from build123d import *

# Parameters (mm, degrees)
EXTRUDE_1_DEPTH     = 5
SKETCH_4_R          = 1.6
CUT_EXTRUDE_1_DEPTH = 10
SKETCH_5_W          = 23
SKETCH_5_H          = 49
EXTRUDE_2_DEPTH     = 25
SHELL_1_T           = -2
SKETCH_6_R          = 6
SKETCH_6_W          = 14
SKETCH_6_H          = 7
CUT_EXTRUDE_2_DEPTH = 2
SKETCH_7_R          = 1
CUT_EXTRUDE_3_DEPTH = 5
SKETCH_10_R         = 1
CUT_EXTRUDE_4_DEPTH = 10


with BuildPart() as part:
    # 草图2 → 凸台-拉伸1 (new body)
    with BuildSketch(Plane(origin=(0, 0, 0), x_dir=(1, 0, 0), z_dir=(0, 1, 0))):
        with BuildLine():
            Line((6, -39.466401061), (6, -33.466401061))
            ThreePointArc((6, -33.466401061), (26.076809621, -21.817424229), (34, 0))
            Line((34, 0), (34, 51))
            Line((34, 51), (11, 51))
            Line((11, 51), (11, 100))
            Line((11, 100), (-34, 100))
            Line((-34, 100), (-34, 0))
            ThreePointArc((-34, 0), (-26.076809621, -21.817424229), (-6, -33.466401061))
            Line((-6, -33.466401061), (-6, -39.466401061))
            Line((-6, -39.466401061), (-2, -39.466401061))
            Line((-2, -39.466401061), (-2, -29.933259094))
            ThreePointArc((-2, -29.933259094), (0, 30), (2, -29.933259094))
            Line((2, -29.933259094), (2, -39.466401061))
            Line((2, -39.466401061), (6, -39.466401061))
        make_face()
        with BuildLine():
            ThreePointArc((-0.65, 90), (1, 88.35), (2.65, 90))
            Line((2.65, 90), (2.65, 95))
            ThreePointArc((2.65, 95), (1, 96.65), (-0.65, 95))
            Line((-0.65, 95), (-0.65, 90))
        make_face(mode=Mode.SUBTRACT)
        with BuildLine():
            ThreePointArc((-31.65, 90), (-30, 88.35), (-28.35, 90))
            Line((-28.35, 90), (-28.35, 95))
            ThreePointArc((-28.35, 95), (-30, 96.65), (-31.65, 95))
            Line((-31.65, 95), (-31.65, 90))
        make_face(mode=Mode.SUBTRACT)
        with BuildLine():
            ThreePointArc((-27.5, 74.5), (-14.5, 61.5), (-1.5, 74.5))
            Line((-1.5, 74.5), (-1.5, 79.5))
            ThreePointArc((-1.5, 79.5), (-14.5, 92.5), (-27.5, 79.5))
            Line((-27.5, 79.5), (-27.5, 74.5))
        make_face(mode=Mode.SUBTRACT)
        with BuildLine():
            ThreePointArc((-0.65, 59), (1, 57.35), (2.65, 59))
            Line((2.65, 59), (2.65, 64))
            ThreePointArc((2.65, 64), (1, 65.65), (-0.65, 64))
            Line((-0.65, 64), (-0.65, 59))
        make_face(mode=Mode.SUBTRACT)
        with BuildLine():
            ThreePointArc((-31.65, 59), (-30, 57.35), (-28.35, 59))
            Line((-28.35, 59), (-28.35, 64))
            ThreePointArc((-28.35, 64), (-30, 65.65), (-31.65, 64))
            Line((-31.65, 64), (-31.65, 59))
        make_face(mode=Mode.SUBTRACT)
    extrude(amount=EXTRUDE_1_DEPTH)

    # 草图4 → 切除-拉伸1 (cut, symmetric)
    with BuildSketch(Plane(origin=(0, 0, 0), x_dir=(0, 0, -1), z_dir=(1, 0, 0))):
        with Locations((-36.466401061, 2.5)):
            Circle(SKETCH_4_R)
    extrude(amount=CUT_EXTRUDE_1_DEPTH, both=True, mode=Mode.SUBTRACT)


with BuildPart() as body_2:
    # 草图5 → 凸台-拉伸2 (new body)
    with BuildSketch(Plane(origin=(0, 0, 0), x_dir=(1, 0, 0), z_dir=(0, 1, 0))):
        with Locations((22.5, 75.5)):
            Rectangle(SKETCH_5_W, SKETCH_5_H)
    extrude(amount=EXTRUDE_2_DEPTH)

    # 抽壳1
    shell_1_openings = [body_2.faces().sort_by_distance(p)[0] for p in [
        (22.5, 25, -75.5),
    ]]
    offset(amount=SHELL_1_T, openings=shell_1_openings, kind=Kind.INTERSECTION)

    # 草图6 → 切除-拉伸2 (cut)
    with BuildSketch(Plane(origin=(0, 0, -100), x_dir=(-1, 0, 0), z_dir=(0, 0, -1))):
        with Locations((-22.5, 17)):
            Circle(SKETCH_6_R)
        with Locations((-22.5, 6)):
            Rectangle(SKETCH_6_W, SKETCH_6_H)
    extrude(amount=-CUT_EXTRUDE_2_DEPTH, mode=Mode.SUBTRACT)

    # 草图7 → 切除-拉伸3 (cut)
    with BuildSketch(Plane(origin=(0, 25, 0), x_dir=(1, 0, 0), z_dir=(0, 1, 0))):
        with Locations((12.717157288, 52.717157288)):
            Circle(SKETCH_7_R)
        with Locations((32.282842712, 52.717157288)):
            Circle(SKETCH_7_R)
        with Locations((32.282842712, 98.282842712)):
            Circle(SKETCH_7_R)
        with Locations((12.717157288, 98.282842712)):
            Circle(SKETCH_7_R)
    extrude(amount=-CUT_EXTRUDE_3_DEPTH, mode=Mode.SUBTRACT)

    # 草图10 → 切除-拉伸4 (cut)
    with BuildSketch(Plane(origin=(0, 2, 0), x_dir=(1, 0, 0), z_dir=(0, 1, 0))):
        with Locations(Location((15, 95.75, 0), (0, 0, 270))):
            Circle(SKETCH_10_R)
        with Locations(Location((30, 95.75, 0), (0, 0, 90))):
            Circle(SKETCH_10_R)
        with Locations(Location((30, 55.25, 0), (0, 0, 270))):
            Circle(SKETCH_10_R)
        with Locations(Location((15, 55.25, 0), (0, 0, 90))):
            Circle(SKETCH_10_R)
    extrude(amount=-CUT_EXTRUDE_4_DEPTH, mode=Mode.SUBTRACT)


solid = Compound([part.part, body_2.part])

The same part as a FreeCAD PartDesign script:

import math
import FreeCAD as App
import Part
import Sketcher
from FreeCAD import Vector


def faces_at(feature, points):
    """Names of the faces that lie closest to the given points."""
    faces = feature.Shape.Faces
    near = lambda p: min(range(len(faces)), key=lambda i: faces[i].distToShape(Part.Vertex(*p))[0])
    return sorted({f"Face{near(p) + 1}" for p in points})


def add_polygon(sketch, points):
    """Adds a closed chain of lines whose ends are joined by coincident constraints."""
    first, n = sketch.GeometryCount, len(points)
    for a, b in zip(points, points[1:] + points[:1]):
        sketch.addGeometry(Part.LineSegment(App.Vector(*a, 0), App.Vector(*b, 0)), False)
    for i in range(n):
        sketch.addConstraint(Sketcher.Constraint("Coincident", first + i, 2, first + (i + 1) % n, 1))

doc = App.newDocument("Part")
body = doc.addObject("PartDesign::Body", "Body")

# Sketch on XZ plane
sketch1 = body.newObject("Sketcher::SketchObject", "Sketch")
sketch1.AttachmentSupport = (doc.getObject("XZ_Plane"), [""])
sketch1.MapMode = "FlatFace"
sketch1.addGeometry([
    Part.LineSegment(Vector(6, 39.5, 0), Vector(6, 33.5, 0)),  # 0
    Part.ArcOfCircle(Part.Circle(Vector(0, 0, 0), Vector(0, 0, 1), 34), math.radians(0), math.radians(80)),  # 1
    Part.LineSegment(Vector(34, 0, 0), Vector(34, -51, 0)),  # 2
    Part.LineSegment(Vector(34, -51, 0), Vector(11, -51, 0)),  # 3
    Part.LineSegment(Vector(11, -51, 0), Vector(11, -100, 0)),  # 4
    Part.LineSegment(Vector(11, -100, 0), Vector(-34, -100, 0)),  # 5
    Part.LineSegment(Vector(-34, -100, 0), Vector(-34, 0, 0)),  # 6
    Part.ArcOfCircle(Part.Circle(Vector(0, 0, 0), Vector(0, 0, 1), 34), math.radians(100), math.radians(180)),  # 7
    Part.LineSegment(Vector(-6, 33.5, 0), Vector(-6, 39.5, 0)),  # 8
    Part.LineSegment(Vector(-6, 39.5, 0), Vector(-2, 39.5, 0)),  # 9
    Part.LineSegment(Vector(-2, 39.5, 0), Vector(-2, 29.9, 0)),  # 10
    Part.ArcOfCircle(Part.Circle(Vector(0, 0, 0), Vector(0, 0, 1), 30), math.radians(94), math.radians(446)),  # 11
    Part.LineSegment(Vector(2, 29.9, 0), Vector(2, 39.5, 0)),  # 12
    Part.LineSegment(Vector(2, 39.5, 0), Vector(6, 39.5, 0)),  # 13
    Part.ArcOfCircle(Part.Circle(Vector(-30, -59, 0), Vector(0, 0, 1), 1.6), math.radians(0), math.radians(180)),  # 14
    Part.LineSegment(Vector(-31.6, -59, 0), Vector(-31.6, -64, 0)),  # 15
    Part.ArcOfCircle(Part.Circle(Vector(-30, -64, 0), Vector(0, 0, 1), 1.6), math.radians(180), math.radians(360)),  # 16
    Part.LineSegment(Vector(-28.4, -64, 0), Vector(-28.4, -59, 0)),  # 17
    Part.ArcOfCircle(Part.Circle(Vector(1, -59, 0), Vector(0, 0, 1), 1.6), math.radians(0), math.radians(180)),  # 18
    Part.LineSegment(Vector(-0.7, -59, 0), Vector(-0.7, -64, 0)),  # 19
    Part.ArcOfCircle(Part.Circle(Vector(1, -64, 0), Vector(0, 0, 1), 1.6), math.radians(180), math.radians(360)),  # 20
    Part.LineSegment(Vector(2.6, -64, 0), Vector(2.6, -59, 0)),  # 21
    Part.ArcOfCircle(Part.Circle(Vector(-14.5, -74.5, 0), Vector(0, 0, 1), 13), math.radians(0), math.radians(180)),  # 22
    Part.LineSegment(Vector(-27.5, -74.5, 0), Vector(-27.5, -79.5, 0)),  # 23
    Part.ArcOfCircle(Part.Circle(Vector(-14.5, -79.5, 0), Vector(0, 0, 1), 13), math.radians(180), math.radians(360)),  # 24
    Part.LineSegment(Vector(-1.5, -79.5, 0), Vector(-1.5, -74.5, 0)),  # 25
    Part.ArcOfCircle(Part.Circle(Vector(-30, -90, 0), Vector(0, 0, 1), 1.6), math.radians(0), math.radians(180)),  # 26
    Part.LineSegment(Vector(-31.6, -90, 0), Vector(-31.6, -95, 0)),  # 27
    Part.ArcOfCircle(Part.Circle(Vector(-30, -95, 0), Vector(0, 0, 1), 1.6), math.radians(180), math.radians(360)),  # 28
    Part.LineSegment(Vector(-28.4, -95, 0), Vector(-28.4, -90, 0)),  # 29
    Part.ArcOfCircle(Part.Circle(Vector(1, -90, 0), Vector(0, 0, 1), 1.6), math.radians(0), math.radians(180)),  # 30
    Part.LineSegment(Vector(-0.7, -90, 0), Vector(-0.7, -95, 0)),  # 31
    Part.ArcOfCircle(Part.Circle(Vector(1, -95, 0), Vector(0, 0, 1), 1.6), math.radians(180), math.radians(360)),  # 32
    Part.LineSegment(Vector(2.6, -95, 0), Vector(2.6, -90, 0)),  # 33
], False)
sketch1.addConstraint([
    Sketcher.Constraint("Coincident", 0, 2, 1, 2),
    Sketcher.Constraint("Tangent", 1, 1, 2, 1),
    Sketcher.Constraint("Coincident", 2, 2, 3, 1),
    Sketcher.Constraint("Coincident", 3, 2, 4, 1),
    Sketcher.Constraint("Coincident", 4, 2, 5, 1),
    Sketcher.Constraint("Coincident", 5, 2, 6, 1),
    Sketcher.Constraint("Tangent", 6, 2, 7, 2),
    Sketcher.Constraint("Coincident", 7, 1, 8, 1),
    Sketcher.Constraint("Coincident", 8, 2, 9, 1),
    Sketcher.Constraint("Coincident", 9, 2, 10, 1),
    Sketcher.Constraint("Coincident", 10, 2, 11, 1),
    Sketcher.Constraint("Coincident", 11, 2, 12, 1),
    Sketcher.Constraint("Coincident", 12, 2, 13, 1),
    Sketcher.Constraint("Coincident", 13, 2, 0, 1),
    Sketcher.Constraint("Tangent", 14, 2, 15, 1),
    Sketcher.Constraint("Tangent", 15, 2, 16, 1),
    Sketcher.Constraint("Tangent", 16, 2, 17, 1),
    Sketcher.Constraint("Tangent", 17, 2, 14, 1),
    Sketcher.Constraint("Tangent", 18, 2, 19, 1),
    Sketcher.Constraint("Tangent", 19, 2, 20, 1),
    Sketcher.Constraint("Tangent", 20, 2, 21, 1),
    Sketcher.Constraint("Tangent", 21, 2, 18, 1),
    Sketcher.Constraint("Tangent", 22, 2, 23, 1),
    Sketcher.Constraint("Tangent", 23, 2, 24, 1),
    Sketcher.Constraint("Tangent", 24, 2, 25, 1),
    Sketcher.Constraint("Tangent", 25, 2, 22, 1),
    Sketcher.Constraint("Tangent", 26, 2, 27, 1),
    Sketcher.Constraint("Tangent", 27, 2, 28, 1),
    Sketcher.Constraint("Tangent", 28, 2, 29, 1),
    Sketcher.Constraint("Tangent", 29, 2, 26, 1),
    Sketcher.Constraint("Tangent", 30, 2, 31, 1),
    Sketcher.Constraint("Tangent", 31, 2, 32, 1),
    Sketcher.Constraint("Tangent", 32, 2, 33, 1),
    Sketcher.Constraint("Tangent", 33, 2, 30, 1),
    Sketcher.Constraint("Vertical", 0),
    Sketcher.Constraint("Vertical", 2),
    Sketcher.Constraint("Horizontal", 3),
    Sketcher.Constraint("Vertical", 4),
    Sketcher.Constraint("Horizontal", 5),
    Sketcher.Constraint("Vertical", 6),
    Sketcher.Constraint("Vertical", 8),
    Sketcher.Constraint("Horizontal", 9),
    Sketcher.Constraint("Vertical", 10),
    Sketcher.Constraint("Vertical", 12),
    Sketcher.Constraint("Horizontal", 13),
    Sketcher.Constraint("Vertical", 15),
    Sketcher.Constraint("Vertical", 17),
    Sketcher.Constraint("Vertical", 19),
    Sketcher.Constraint("Vertical", 21),
    Sketcher.Constraint("Vertical", 23),
    Sketcher.Constraint("Vertical", 25),
    Sketcher.Constraint("Vertical", 27),
    Sketcher.Constraint("Vertical", 29),
    Sketcher.Constraint("Vertical", 31),
    Sketcher.Constraint("Vertical", 33),
    Sketcher.Constraint("Coincident", 1, 3, -1, 1),
    Sketcher.Constraint("Coincident", 7, 3, -1, 1),
    Sketcher.Constraint("Coincident", 11, 3, -1, 1),
    Sketcher.Constraint("Equal", 1, 7),
    Sketcher.Constraint("Equal", 16, 18),
    Sketcher.Constraint("Equal", 20, 26),
    Sketcher.Constraint("Equal", 28, 30),
    Sketcher.Constraint("Symmetric", 9, 2, 12, 2, -2),
    Sketcher.Constraint("Horizontal", 14, 3, 18, 3),
    Sketcher.Constraint("Horizontal", 16, 3, 20, 3),
    Sketcher.Constraint("Horizontal", 26, 3, 30, 3),
    Sketcher.Constraint("Horizontal", 28, 3, 32, 3),
    Sketcher.Constraint("Horizontal", 0, 2, 7, 1),
    Sketcher.Constraint("Vertical", 16, 3, 26, 3),
    Sketcher.Constraint("Vertical", 20, 3, 30, 3),
    Sketcher.Constraint("Equal", 21, 23),
    Sketcher.Constraint("Equal", 25, 27),
    Sketcher.Constraint("Radius", 1, 34.0),
    Sketcher.Constraint("Radius", 11, 30.0),
    Sketcher.Constraint("Radius", 22, 13.0),
    Sketcher.Constraint("DistanceX", 3, 2, 3, 1, 23.0),
    Sketcher.Constraint("DistanceX", 9, 1, 9, 2, 4.0),
    Sketcher.Constraint("DistanceY", 0, 2, 0, 1, 6.0),
    Sketcher.Constraint("DistanceY", 2, 2, 2, 1, 51.0),
    Sketcher.Constraint("DistanceY", 4, 2, 4, 1, 49.0),
    Sketcher.Constraint("DistanceY", 15, 2, 15, 1, 5.0),
    Sketcher.Constraint("Radius", 14, 1.65),
    Sketcher.Constraint("DistanceX", 14, 3, -1, 1, 30.0),
    Sketcher.Constraint("DistanceY", 14, 3, -1, 1, 59.0),
    Sketcher.Constraint("DistanceX", -1, 1, 18, 3, 1.0),
    Sketcher.Constraint("DistanceY", 26, 3, -1, 1, 90.0),
    Sketcher.Constraint("DistanceX", -1, 1, 0, 2, 6.0),
    Sketcher.Constraint("DistanceX", 22, 3, -1, 1, 14.5),
    Sketcher.Constraint("DistanceY", 22, 3, -1, 1, 74.5),
])
pad1 = body.newObject("PartDesign::Pad", "Pad")
pad1.Profile = sketch1
pad1.Length = 5
pad1.Reversed = True

# Sketch on YZ plane
sketch2 = body.newObject("Sketcher::SketchObject", "Sketch001")
sketch2.AttachmentSupport = (doc.getObject("YZ_Plane"), [""])
sketch2.MapMode = "FlatFace"
sketch2.addGeometry(Part.Circle(Vector(2.5, 36.5, 0), Vector(0, 0, 1), 1.6), False)
sketch2.addConstraint([
    Sketcher.Constraint("Diameter", 0, 3.2),
    Sketcher.Constraint("DistanceX", -1, 1, 0, 3, 2.5),
    Sketcher.Constraint("DistanceY", -1, 1, 0, 3, 36.466401),
])
pocket1 = body.newObject("PartDesign::Pocket", "Pocket")
pocket1.Profile = sketch2
pocket1.Length = 20
pocket1.Midplane = True
body2 = doc.addObject("PartDesign::Body", "Body001")

# Sketch on XZ plane
sketch3 = body2.newObject("Sketcher::SketchObject", "Sketch002")
sketch3.AttachmentSupport = (doc.getObject("XZ_Plane001"), [""])
sketch3.MapMode = "FlatFace"
add_polygon(sketch3, [(11, -100), (11, -51), (34, -51), (34, -100)])  # lines 0-3
sketch3.addConstraint([
    Sketcher.Constraint("Vertical", 0),
    Sketcher.Constraint("Horizontal", 1),
    Sketcher.Constraint("Vertical", 2),
    Sketcher.Constraint("Horizontal", 3),
    Sketcher.Constraint("DistanceX", 1, 1, 1, 2, 23.0),
    Sketcher.Constraint("DistanceY", 0, 1, 0, 2, 49.0),
    Sketcher.Constraint("DistanceX", -1, 1, 0, 2, 11.0),
    Sketcher.Constraint("DistanceY", 0, 2, -1, 1, 51.0),
])
pad2 = body2.newObject("PartDesign::Pad", "Pad001")
pad2.Profile = sketch3
pad2.Length = 25
pad2.Reversed = True
doc.recompute()

thickness = body2.newObject("PartDesign::Thickness", "Thickness")
thickness.Base = (pad2, faces_at(pad2, [(22.5, 25, -75.5)]))
thickness.Value = 2
thickness.Reversed = True
thickness.Join = "Intersection"

# Sketch on XY plane
sketch4 = body2.newObject("Sketcher::SketchObject", "Sketch003")
sketch4.AttachmentSupport = (doc.getObject("XY_Plane001"), [""])
sketch4.MapMode = "FlatFace"
sketch4.AttachmentOffset = App.Placement(Vector(0, 0, -100), App.Rotation())
sketch4.addGeometry(Part.Circle(Vector(22, 17, 0), Vector(0, 0, 1), 6), False)  # 0
add_polygon(sketch4, [(30, 10), (30, 2), (16, 2), (16, 10)])  # lines 1-4
sketch4.addConstraint([
    Sketcher.Constraint("Vertical", 1),
    Sketcher.Constraint("Horizontal", 2),
    Sketcher.Constraint("Vertical", 3),
    Sketcher.Constraint("Horizontal", 4),
    Sketcher.Constraint("Diameter", 0, 12.0),
    Sketcher.Constraint("DistanceX", 2, 2, 2, 1, 14.0),
    Sketcher.Constraint("DistanceY", 1, 2, 1, 1, 7.0),
    Sketcher.Constraint("DistanceY", -1, 1, 0, 3, 17.0),
    Sketcher.Constraint("DistanceX", 0, 3, 1, 2, 7.0),
    Sketcher.Constraint("DistanceX", -1, 1, 0, 3, 22.5),
    Sketcher.Constraint("DistanceY", -1, 1, 1, 2, 2.5),
])
pocket2 = body2.newObject("PartDesign::Pocket", "Pocket001")
pocket2.Profile = sketch4
pocket2.Length = 2
pocket2.Reversed = True

# Sketch on XZ plane
sketch5 = body2.newObject("Sketcher::SketchObject", "Sketch004")
sketch5.AttachmentSupport = (doc.getObject("XZ_Plane001"), [""])
sketch5.MapMode = "FlatFace"
sketch5.AttachmentOffset = App.Placement(Vector(0, 0, -25), App.Rotation())
sketch5.addGeometry([
    Part.Circle(Vector(12.7, -52.7, 0), Vector(0, 0, 1), 1),
    Part.Circle(Vector(32.3, -52.7, 0), Vector(0, 0, 1), 1),
    Part.Circle(Vector(32.3, -98.3, 0), Vector(0, 0, 1), 1),
    Part.Circle(Vector(12.7, -98.3, 0), Vector(0, 0, 1), 1),
], False)
sketch5.addConstraint([
    Sketcher.Constraint("Equal", 0, 1),
    Sketcher.Constraint("Equal", 1, 2),
    Sketcher.Constraint("Equal", 2, 3),
    Sketcher.Constraint("Horizontal", 0, 3, 1, 3),
    Sketcher.Constraint("Horizontal", 2, 3, 3, 3),
    Sketcher.Constraint("Vertical", 1, 3, 2, 3),
    Sketcher.Constraint("Vertical", 0, 3, 3, 3),
    Sketcher.Constraint("Diameter", 0, 2.0),
    Sketcher.Constraint("DistanceX", -1, 1, 0, 3, 12.717157),
    Sketcher.Constraint("DistanceY", 0, 3, -1, 1, 52.717157),
    Sketcher.Constraint("DistanceX", -1, 1, 1, 3, 32.282843),
    Sketcher.Constraint("DistanceY", 2, 3, -1, 1, 98.282843),
])
pocket3 = body2.newObject("PartDesign::Pocket", "Pocket002")
pocket3.Profile = sketch5
pocket3.Length = 5
pocket3.Reversed = True

# Sketch on XZ plane
sketch6 = body2.newObject("Sketcher::SketchObject", "Sketch005")
sketch6.AttachmentSupport = (doc.getObject("XZ_Plane001"), [""])
sketch6.MapMode = "FlatFace"
sketch6.AttachmentOffset = App.Placement(Vector(0, 0, -2), App.Rotation())
sketch6.addGeometry([
    Part.Circle(Vector(15, -95.8, 0), Vector(0, 0, 1), 1),
    Part.Circle(Vector(30, -95.8, 0), Vector(0, 0, 1), 1),
    Part.Circle(Vector(30, -55.2, 0), Vector(0, 0, 1), 1),
    Part.Circle(Vector(15, -55.2, 0), Vector(0, 0, 1), 1),
], False)
sketch6.addConstraint([
    Sketcher.Constraint("Equal", 0, 1),
    Sketcher.Constraint("Equal", 1, 2),
    Sketcher.Constraint("Equal", 2, 3),
    Sketcher.Constraint("Horizontal", 0, 3, 1, 3),
    Sketcher.Constraint("Horizontal", 2, 3, 3, 3),
    Sketcher.Constraint("Vertical", 1, 3, 2, 3),
    Sketcher.Constraint("Vertical", 0, 3, 3, 3),
    Sketcher.Constraint("Diameter", 0, 2.0),
    Sketcher.Constraint("DistanceX", -1, 1, 0, 3, 15.0),
    Sketcher.Constraint("DistanceX", -1, 1, 1, 3, 30.0),
    Sketcher.Constraint("DistanceY", 1, 3, 2, 3, 40.5),
    Sketcher.Constraint("DistanceY", 0, 3, -1, 1, 95.75),
])
pocket4 = body2.newObject("PartDesign::Pocket", "Pocket003")
pocket4.Profile = sketch6
pocket4.Length = 10
pocket4.Reversed = True

doc.recompute()
